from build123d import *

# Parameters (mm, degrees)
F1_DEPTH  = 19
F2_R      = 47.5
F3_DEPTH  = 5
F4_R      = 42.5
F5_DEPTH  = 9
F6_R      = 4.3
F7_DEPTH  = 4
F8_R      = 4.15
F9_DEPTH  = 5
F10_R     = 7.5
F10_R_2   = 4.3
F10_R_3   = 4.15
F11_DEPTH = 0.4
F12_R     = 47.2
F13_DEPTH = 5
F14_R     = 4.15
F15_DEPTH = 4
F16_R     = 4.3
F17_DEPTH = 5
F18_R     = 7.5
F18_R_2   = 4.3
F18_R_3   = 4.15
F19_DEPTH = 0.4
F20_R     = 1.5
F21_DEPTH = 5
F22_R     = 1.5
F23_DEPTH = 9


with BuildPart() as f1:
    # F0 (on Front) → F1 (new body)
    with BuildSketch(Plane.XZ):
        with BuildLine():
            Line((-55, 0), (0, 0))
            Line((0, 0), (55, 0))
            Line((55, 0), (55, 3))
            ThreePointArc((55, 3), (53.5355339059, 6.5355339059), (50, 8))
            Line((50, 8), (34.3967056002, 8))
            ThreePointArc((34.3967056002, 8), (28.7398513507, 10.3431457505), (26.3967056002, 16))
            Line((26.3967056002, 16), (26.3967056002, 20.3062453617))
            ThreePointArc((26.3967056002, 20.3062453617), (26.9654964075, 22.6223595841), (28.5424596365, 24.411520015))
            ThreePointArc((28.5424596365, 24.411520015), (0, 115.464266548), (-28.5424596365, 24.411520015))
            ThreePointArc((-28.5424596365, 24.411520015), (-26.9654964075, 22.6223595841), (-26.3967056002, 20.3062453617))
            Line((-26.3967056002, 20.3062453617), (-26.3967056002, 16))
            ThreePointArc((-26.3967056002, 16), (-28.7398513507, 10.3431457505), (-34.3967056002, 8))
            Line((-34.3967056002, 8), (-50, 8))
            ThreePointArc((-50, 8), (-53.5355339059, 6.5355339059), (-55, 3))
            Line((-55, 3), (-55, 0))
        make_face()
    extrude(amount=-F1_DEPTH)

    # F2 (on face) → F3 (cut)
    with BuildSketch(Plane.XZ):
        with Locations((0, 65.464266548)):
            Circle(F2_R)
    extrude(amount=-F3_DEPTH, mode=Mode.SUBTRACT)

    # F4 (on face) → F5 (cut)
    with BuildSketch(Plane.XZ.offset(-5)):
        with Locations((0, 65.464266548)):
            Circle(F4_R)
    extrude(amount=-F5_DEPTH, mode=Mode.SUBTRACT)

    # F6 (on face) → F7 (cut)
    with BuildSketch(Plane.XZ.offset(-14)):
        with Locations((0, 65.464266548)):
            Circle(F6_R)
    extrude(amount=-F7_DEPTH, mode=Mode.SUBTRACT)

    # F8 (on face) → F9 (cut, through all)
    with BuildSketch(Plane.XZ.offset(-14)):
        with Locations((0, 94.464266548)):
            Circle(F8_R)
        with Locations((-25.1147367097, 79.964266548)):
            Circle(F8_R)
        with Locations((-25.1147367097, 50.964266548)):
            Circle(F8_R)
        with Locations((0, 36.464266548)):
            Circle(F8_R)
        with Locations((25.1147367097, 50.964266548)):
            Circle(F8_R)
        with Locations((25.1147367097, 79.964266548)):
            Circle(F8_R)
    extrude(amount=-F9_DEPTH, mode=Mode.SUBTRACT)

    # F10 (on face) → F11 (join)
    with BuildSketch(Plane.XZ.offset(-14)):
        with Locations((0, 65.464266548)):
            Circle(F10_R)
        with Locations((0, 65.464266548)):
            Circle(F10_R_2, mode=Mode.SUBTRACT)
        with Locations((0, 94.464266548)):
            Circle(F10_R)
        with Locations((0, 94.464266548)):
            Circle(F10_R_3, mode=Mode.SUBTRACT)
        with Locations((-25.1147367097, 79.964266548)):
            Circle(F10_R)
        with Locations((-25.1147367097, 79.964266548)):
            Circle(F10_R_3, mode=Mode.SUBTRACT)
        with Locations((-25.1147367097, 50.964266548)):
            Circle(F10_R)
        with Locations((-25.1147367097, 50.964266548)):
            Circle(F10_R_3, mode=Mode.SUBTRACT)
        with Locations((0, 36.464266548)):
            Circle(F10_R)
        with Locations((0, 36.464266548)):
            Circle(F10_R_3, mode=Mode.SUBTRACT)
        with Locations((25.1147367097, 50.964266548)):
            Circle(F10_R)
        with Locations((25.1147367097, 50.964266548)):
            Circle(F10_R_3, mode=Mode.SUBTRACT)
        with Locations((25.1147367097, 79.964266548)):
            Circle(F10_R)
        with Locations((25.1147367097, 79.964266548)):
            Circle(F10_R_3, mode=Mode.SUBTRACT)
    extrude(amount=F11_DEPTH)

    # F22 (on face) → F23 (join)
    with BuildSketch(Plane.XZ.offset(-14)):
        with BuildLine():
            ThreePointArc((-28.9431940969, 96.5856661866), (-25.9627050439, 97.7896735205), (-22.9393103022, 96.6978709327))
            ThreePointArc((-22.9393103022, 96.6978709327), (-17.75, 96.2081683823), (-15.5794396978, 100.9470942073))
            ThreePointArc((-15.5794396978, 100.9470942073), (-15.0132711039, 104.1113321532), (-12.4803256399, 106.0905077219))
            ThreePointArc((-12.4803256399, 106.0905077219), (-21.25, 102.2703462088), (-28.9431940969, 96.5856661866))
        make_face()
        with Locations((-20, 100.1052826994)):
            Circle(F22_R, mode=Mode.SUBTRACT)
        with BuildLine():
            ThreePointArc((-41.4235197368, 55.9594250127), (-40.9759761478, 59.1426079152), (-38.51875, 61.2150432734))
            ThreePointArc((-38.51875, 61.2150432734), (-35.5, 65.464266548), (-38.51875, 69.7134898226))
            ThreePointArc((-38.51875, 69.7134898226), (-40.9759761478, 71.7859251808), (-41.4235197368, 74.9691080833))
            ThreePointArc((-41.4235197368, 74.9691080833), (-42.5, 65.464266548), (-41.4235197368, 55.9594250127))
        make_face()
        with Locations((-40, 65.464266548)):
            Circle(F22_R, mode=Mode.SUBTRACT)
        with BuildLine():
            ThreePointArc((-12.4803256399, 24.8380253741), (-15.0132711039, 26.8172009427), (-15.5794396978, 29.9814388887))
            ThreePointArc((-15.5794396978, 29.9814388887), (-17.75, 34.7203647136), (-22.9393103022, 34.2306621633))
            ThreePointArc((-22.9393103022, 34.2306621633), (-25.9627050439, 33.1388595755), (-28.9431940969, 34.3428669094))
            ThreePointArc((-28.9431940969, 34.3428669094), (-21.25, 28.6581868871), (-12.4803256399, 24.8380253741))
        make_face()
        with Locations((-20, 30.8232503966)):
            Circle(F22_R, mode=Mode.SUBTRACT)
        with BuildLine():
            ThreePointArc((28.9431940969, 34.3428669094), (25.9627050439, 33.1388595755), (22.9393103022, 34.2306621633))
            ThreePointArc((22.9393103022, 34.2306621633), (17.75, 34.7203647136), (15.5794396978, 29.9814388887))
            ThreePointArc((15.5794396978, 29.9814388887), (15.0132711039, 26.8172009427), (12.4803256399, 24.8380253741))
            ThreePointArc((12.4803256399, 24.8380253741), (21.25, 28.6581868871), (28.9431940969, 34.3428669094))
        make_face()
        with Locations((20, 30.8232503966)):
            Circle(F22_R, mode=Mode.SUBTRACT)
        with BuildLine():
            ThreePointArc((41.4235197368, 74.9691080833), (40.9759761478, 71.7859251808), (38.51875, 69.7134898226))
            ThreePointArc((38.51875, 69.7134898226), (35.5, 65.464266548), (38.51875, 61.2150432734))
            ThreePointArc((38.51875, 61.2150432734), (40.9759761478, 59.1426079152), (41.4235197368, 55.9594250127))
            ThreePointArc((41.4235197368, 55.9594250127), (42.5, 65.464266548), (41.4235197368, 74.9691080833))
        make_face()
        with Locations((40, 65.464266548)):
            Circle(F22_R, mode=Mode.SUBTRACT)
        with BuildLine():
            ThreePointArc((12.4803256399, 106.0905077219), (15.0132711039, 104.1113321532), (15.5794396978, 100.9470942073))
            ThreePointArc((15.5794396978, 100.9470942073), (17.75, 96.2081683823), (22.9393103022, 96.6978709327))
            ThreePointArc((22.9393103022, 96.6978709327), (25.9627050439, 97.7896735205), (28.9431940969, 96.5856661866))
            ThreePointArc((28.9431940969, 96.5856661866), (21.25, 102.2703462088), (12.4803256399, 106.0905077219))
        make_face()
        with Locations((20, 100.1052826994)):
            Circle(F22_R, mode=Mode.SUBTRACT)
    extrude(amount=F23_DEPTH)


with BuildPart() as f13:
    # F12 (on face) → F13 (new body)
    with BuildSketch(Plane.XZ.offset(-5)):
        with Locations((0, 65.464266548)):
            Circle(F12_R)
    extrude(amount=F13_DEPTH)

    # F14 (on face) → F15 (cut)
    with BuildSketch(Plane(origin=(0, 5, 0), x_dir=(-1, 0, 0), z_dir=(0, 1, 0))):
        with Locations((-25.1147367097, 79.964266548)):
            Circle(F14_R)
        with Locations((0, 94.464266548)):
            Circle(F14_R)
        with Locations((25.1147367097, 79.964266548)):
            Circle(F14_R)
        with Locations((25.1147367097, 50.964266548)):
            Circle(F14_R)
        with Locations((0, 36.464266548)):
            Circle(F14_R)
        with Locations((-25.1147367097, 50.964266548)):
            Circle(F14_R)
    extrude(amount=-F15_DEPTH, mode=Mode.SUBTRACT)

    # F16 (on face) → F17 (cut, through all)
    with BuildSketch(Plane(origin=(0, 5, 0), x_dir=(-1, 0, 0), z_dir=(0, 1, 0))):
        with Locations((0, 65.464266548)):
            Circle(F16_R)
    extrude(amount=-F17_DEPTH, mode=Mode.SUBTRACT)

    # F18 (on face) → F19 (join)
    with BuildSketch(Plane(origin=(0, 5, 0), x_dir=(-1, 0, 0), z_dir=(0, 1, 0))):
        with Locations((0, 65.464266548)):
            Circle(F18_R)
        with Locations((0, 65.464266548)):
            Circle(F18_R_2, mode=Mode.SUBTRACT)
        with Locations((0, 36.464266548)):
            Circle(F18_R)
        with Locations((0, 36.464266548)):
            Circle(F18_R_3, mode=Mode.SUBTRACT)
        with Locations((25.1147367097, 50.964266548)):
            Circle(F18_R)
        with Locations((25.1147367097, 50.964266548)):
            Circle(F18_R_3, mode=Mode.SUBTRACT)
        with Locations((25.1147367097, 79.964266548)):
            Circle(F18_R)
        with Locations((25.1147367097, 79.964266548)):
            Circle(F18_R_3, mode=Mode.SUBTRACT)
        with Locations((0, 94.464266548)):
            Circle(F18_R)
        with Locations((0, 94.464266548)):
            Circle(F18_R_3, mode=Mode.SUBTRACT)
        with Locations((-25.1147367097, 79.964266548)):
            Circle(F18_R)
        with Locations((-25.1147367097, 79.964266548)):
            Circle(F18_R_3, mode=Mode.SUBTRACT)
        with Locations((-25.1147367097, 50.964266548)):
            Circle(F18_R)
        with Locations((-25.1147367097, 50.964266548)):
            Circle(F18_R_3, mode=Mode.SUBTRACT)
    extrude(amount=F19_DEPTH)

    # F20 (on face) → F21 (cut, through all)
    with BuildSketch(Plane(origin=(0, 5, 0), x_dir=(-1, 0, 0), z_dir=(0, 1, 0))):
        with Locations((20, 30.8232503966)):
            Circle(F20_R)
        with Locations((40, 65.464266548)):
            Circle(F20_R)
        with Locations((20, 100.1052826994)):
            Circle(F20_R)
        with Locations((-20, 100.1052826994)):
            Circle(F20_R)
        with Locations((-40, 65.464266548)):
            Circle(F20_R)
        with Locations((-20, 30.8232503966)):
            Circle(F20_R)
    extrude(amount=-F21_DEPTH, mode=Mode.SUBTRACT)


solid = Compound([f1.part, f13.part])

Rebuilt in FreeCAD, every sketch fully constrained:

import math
import FreeCAD as App
import Part
import Sketcher

V = App.Vector
Q = App.Units.Quantity

doc = App.newDocument("Part")
body = doc.addObject("PartDesign::Body", "Body")

sketch1 = body.newObject("Sketcher::SketchObject", "Sketch")
sketch1.AttachmentSupport = (doc.getObject("XZ_Plane"), [""])
sketch1.MapMode = "FlatFace"
sketch1.addGeometry([
    Part.LineSegment(V(-55, 0, 0), V(55, 0, 0)),
    Part.LineSegment(V(55, 0, 0), V(55, 3, 0)),
    Part.ArcOfCircle(Part.Circle(V(50, 3, 0), V(0, 0, 1), 5), math.radians(0), math.radians(90)),
    Part.LineSegment(V(50, 8, 0), V(34.396706, 8, 0)),
    Part.ArcOfCircle(Part.Circle(V(34.396706, 16, 0), V(0, 0, 1), 8), math.radians(180), math.radians(270)),
    Part.LineSegment(V(26.396706, 16, 0), V(26.396706, 20.306245, 0)),
    Part.ArcOfCircle(Part.Circle(V(31.396706, 20.306245, 0), V(0, 0, 1), 5), math.radians(124.809464), math.radians(180)),
    Part.ArcOfCircle(Part.Circle(V(0, 65.464267, 0), V(0, 0, 1), 50), math.radians(-55.190536), math.radians(235.190536)),
    Part.ArcOfCircle(Part.Circle(V(-31.396706, 20.306245, 0), V(0, 0, 1), 5), math.radians(0), math.radians(55.190536)),
    Part.LineSegment(V(-26.396706, 20.306245, 0), V(-26.396706, 16, 0)),
    Part.ArcOfCircle(Part.Circle(V(-34.396706, 16, 0), V(0, 0, 1), 8), math.radians(-90), math.radians(0)),
    Part.LineSegment(V(-34.396706, 8, 0), V(-50, 8, 0)),
    Part.ArcOfCircle(Part.Circle(V(-50, 3, 0), V(0, 0, 1), 5), math.radians(90), math.radians(180)),
    Part.LineSegment(V(-55, 3, 0), V(-55, 0, 0)),
], False)
sketch1.addConstraint([
    Sketcher.Constraint("Coincident", 0, 2, 1, 1),
    Sketcher.Constraint("Tangent", 1, 2, 2, 1),
    Sketcher.Constraint("Tangent", 2, 2, 3, 1),
    Sketcher.Constraint("Tangent", 3, 2, 4, 2),
    Sketcher.Constraint("Tangent", 4, 1, 5, 1),
    Sketcher.Constraint("Tangent", 5, 2, 6, 2),
    Sketcher.Constraint("Tangent", 6, 1, 7, 1),
    Sketcher.Constraint("Tangent", 7, 2, 8, 2),
    Sketcher.Constraint("Tangent", 8, 1, 9, 1),
    Sketcher.Constraint("Tangent", 9, 2, 10, 2),
    Sketcher.Constraint("Tangent", 10, 1, 11, 1),
    Sketcher.Constraint("Tangent", 11, 2, 12, 1),
    Sketcher.Constraint("Tangent", 12, 2, 13, 1),
    Sketcher.Constraint("Coincident", 13, 2, 0, 1),
    Sketcher.Constraint("Horizontal", 0),
    Sketcher.Constraint("Vertical", 1),
    Sketcher.Constraint("Horizontal", 3),
    Sketcher.Constraint("Vertical", 5),
    Sketcher.Constraint("Vertical", 9),
    Sketcher.Constraint("Horizontal", 11),
    Sketcher.Constraint("Vertical", 13),
    Sketcher.Constraint("Equal", 2, 6),
    Sketcher.Constraint("Equal", 6, 8),
    Sketcher.Constraint("Equal", 4, 10),
    Sketcher.Constraint("Equal", 8, 12),
    Sketcher.Constraint("Symmetric", 0, 2, 13, 2, -1, 1),
    Sketcher.Constraint("Symmetric", 6, 3, 8, 3, -2),
    Sketcher.Constraint("Horizontal", 4, 3, 10, 3),
    Sketcher.Constraint("Radius", 2, Q("5 mm")),
    Sketcher.Constraint("Radius", 4, Q("8 mm")),
    Sketcher.Constraint("Radius", 7, Q("50 mm")),
    Sketcher.Constraint("DistanceX", 0, 1, 0, 2, Q("110 mm")),
    Sketcher.Constraint("DistanceY", 1, 1, 1, 2, Q("3 mm")),
    Sketcher.Constraint("DistanceX", 3, 2, 3, 1, Q("15.603294 mm")),
    Sketcher.Constraint("DistanceY", 5, 1, 5, 2, Q("4.306245 mm")),
])
pad1 = body.newObject("PartDesign::Pad", "Pad")
pad1.Profile = sketch1
pad1.Length = 19
pad1.Reversed = True

sketch2 = body.newObject("Sketcher::SketchObject", "Sketch001")
sketch2.AttachmentSupport = (doc.getObject("XZ_Plane"), [""])
sketch2.MapMode = "FlatFace"
sketch2.addGeometry(Part.Circle(V(0, 65.464267, 0), V(0, 0, 1), 47.5), False)
sketch2.addConstraint([
    Sketcher.Constraint("PointOnObject", 0, 3, -2),
    Sketcher.Constraint("Diameter", 0, Q("95 mm")),
    Sketcher.Constraint("DistanceY", -1, 1, 0, 3, Q("65.464267 mm")),
])
pocket1 = body.newObject("PartDesign::Pocket", "Pocket")
pocket1.Profile = sketch2
pocket1.Length = 5

sketch3 = body.newObject("Sketcher::SketchObject", "Sketch002")
sketch3.AttachmentSupport = (doc.getObject("XZ_Plane"), [""])
sketch3.MapMode = "FlatFace"
sketch3.AttachmentOffset = App.Placement(V(0, 0, -5), App.Rotation())
sketch3.addGeometry(Part.Circle(V(0, 65.464267, 0), V(0, 0, 1), 42.5), False)
sketch3.addConstraint([
    Sketcher.Constraint("PointOnObject", 0, 3, -2),
    Sketcher.Constraint("Diameter", 0, Q("85 mm")),
    Sketcher.Constraint("DistanceY", -1, 1, 0, 3, Q("65.464267 mm")),
])
pocket2 = body.newObject("PartDesign::Pocket", "Pocket001")
pocket2.Profile = sketch3
pocket2.Length = 9

sketch4 = body.newObject("Sketcher::SketchObject", "Sketch003")
sketch4.AttachmentSupport = (doc.getObject("XZ_Plane"), [""])
sketch4.MapMode = "FlatFace"
sketch4.AttachmentOffset = App.Placement(V(0, 0, -14), App.Rotation())
sketch4.addGeometry(Part.Circle(V(0, 65.464267, 0), V(0, 0, 1), 4.3), False)
sketch4.addConstraint([
    Sketcher.Constraint("PointOnObject", 0, 3, -2),
    Sketcher.Constraint("Diameter", 0, Q("8.6 mm")),
    Sketcher.Constraint("DistanceY", -1, 1, 0, 3, Q("65.464267 mm")),
])
pocket3 = body.newObject("PartDesign::Pocket", "Pocket002")
pocket3.Profile = sketch4
pocket3.Length = 4

sketch5 = body.newObject("Sketcher::SketchObject", "Sketch004")
sketch5.AttachmentSupport = (doc.getObject("XZ_Plane"), [""])
sketch5.MapMode = "FlatFace"
sketch5.AttachmentOffset = App.Placement(V(0, 0, -14), App.Rotation())
sketch5.addGeometry([
    Part.Circle(V(0, 94.464267, 0), V(0, 0, 1), 4.15),
    Part.Circle(V(-25.114737, 79.964267, 0), V(0, 0, 1), 4.15),
    Part.Circle(V(-25.114737, 50.964267, 0), V(0, 0, 1), 4.15),
    Part.Circle(V(0, 36.464267, 0), V(0, 0, 1), 4.15),
    Part.Circle(V(25.114737, 50.964267, 0), V(0, 0, 1), 4.15),
    Part.Circle(V(25.114737, 79.964267, 0), V(0, 0, 1), 4.15),
], False)
sketch5.addConstraint([
    Sketcher.Constraint("Equal", 0, 1),
    Sketcher.Constraint("Equal", 1, 2),
    Sketcher.Constraint("Equal", 2, 3),
    Sketcher.Constraint("Equal", 3, 4),
    Sketcher.Constraint("Equal", 4, 5),
    Sketcher.Constraint("Symmetric", 2, 3, 4, 3, -2),
    Sketcher.Constraint("Symmetric", 1, 3, 5, 3, -2),
    Sketcher.Constraint("PointOnObject", 0, 3, -2),
    Sketcher.Constraint("PointOnObject", 3, 3, -2),
    Sketcher.Constraint("Vertical", 1, 3, 2, 3),
    Sketcher.Constraint("Diameter", 0, Q("8.3 mm")),
    Sketcher.Constraint("DistanceY", 2, 3, 1, 3, Q("29 mm")),
    Sketcher.Constraint("DistanceY", 3, 3, 0, 3, Q("58 mm")),
    Sketcher.Constraint("DistanceY", 1, 3, 0, 3, Q("14.5 mm")),
    Sketcher.Constraint("DistanceY", -1, 1, 0, 3, Q("94.464267 mm")),
    Sketcher.Constraint("DistanceX", 1, 3, -1, 1, Q("25.114737 mm")),
])
pocket4 = body.newObject("PartDesign::Pocket", "Pocket003")
pocket4.Profile = sketch5
pocket4.Type = "ThroughAll"

sketch6 = body.newObject("Sketcher::SketchObject", "Sketch005")
sketch6.AttachmentSupport = (doc.getObject("XZ_Plane"), [""])
sketch6.MapMode = "FlatFace"
sketch6.AttachmentOffset = App.Placement(V(0, 0, -14), App.Rotation())
sketch6.addGeometry([
    Part.Circle(V(0, 65.464267, 0), V(0, 0, 1), 7.5),
    Part.Circle(V(0, 65.464267, 0), V(0, 0, 1), 4.3),
    Part.Circle(V(0, 94.464267, 0), V(0, 0, 1), 7.5),
    Part.Circle(V(0, 94.464267, 0), V(0, 0, 1), 4.15),
    Part.Circle(V(-25.114737, 79.964267, 0), V(0, 0, 1), 7.5),
    Part.Circle(V(-25.114737, 79.964267, 0), V(0, 0, 1), 4.15),
    Part.Circle(V(-25.114737, 50.964267, 0), V(0, 0, 1), 7.5),
    Part.Circle(V(-25.114737, 50.964267, 0), V(0, 0, 1), 4.15),
    Part.Circle(V(0, 36.464267, 0), V(0, 0, 1), 7.5),
    Part.Circle(V(0, 36.464267, 0), V(0, 0, 1), 4.15),
    Part.Circle(V(25.114737, 50.964267, 0), V(0, 0, 1), 7.5),
    Part.Circle(V(25.114737, 50.964267, 0), V(0, 0, 1), 4.15),
    Part.Circle(V(25.114737, 79.964267, 0), V(0, 0, 1), 7.5),
    Part.Circle(V(25.114737, 79.964267, 0), V(0, 0, 1), 4.15),
], False)
sketch6.addConstraint([
    Sketcher.Constraint("Coincident", 1, 3, 0, 3),
    Sketcher.Constraint("Coincident", 3, 3, 2, 3),
    Sketcher.Constraint("Coincident", 5, 3, 4, 3),
    Sketcher.Constraint("Coincident", 7, 3, 6, 3),
    Sketcher.Constraint("Coincident", 9, 3, 8, 3),
    Sketcher.Constraint("Coincident", 11, 3, 10, 3),
    Sketcher.Constraint("Coincident", 13, 3, 12, 3),
    Sketcher.Constraint("Equal", 0, 2),
    Sketcher.Constraint("Equal", 2, 4),
    Sketcher.Constraint("Equal", 3, 5),
    Sketcher.Constraint("Equal", 4, 6),
    Sketcher.Constraint("Equal", 5, 7),
    Sketcher.Constraint("Equal", 6, 8),
    Sketcher.Constraint("Equal", 7, 9),
    Sketcher.Constraint("Equal", 8, 10),
    Sketcher.Constraint("Equal", 9, 11),
    Sketcher.Constraint("Equal", 10, 12),
    Sketcher.Constraint("Equal", 11, 13),
    Sketcher.Constraint("Symmetric", 6, 3, 10, 3, -2),
    Sketcher.Constraint("Symmetric", 4, 3, 12, 3, -2),
    Sketcher.Constraint("PointOnObject", 0, 3, -2),
    Sketcher.Constraint("PointOnObject", 2, 3, -2),
    Sketcher.Constraint("PointOnObject", 8, 3, -2),
    Sketcher.Constraint("Vertical", 5, 3, 6, 3),
    Sketcher.Constraint("Diameter", 0, Q("15 mm")),
    Sketcher.Constraint("Diameter", 1, Q("8.6 mm")),
    Sketcher.Constraint("Diameter", 3, Q("8.3 mm")),
    Sketcher.Constraint("DistanceY", 0, 3, 2, 3, Q("29 mm")),
    Sketcher.Constraint("DistanceY", 6, 3, 4, 3, Q("29 mm")),
    Sketcher.Constraint("DistanceY", 8, 3, 0, 3, Q("29 mm")),
    Sketcher.Constraint("DistanceY", 0, 3, 4, 3, Q("14.5 mm")),
    Sketcher.Constraint("DistanceY", -1, 1, 0, 3, Q("65.464267 mm")),
    Sketcher.Constraint("DistanceX", 4, 3, -1, 1, Q("25.114737 mm")),
])
pad2 = body.newObject("PartDesign::Pad", "Pad001")
pad2.Profile = sketch6
pad2.Length = 0.4

sketch7 = body.newObject("Sketcher::SketchObject", "Sketch006")
sketch7.AttachmentSupport = (doc.getObject("XZ_Plane"), [""])
sketch7.MapMode = "FlatFace"
sketch7.AttachmentOffset = App.Placement(V(0, 0, -14), App.Rotation())
sketch7.addGeometry([
    Part.ArcOfCircle(Part.Circle(V(-25.878621, 93.290459, 0), V(0, 0, 1), 4.5), math.radians(49.218203), math.radians(132.923114)),
    Part.ArcOfCircle(Part.Circle(V(-20, 100.105283, 0), V(0, 0, 1), 4.5), math.radians(-130.781797), math.radians(10.781797)),
    Part.ArcOfCircle(Part.Circle(V(-11.158879, 101.788906, 0), V(0, 0, 1), 4.5), math.radians(107.076886), math.radians(190.781797)),
    Part.ArcOfCircle(Part.Circle(V(0, 65.464267, 0), V(0, 0, 1), 42.5), math.radians(107.076886), math.radians(132.923114)),
    Part.Circle(V(-20, 100.105283, 0), V(0, 0, 1), 1.5),
    Part.ArcOfCircle(Part.Circle(V(-37.0375, 56.96582, 0), V(0, 0, 1), 4.5), math.radians(109.218203), math.radians(192.923114)),
    Part.ArcOfCircle(Part.Circle(V(-40, 65.464267, 0), V(0, 0, 1), 4.5), math.radians(-70.781797), math.radians(70.781797)),
    Part.ArcOfCircle(Part.Circle(V(-37.0375, 73.962713, 0), V(0, 0, 1), 4.5), math.radians(167.076886), math.radians(250.781797)),
    Part.ArcOfCircle(Part.Circle(V(0, 65.464267, 0), V(0, 0, 1), 42.5), math.radians(167.076886), math.radians(192.923114)),
    Part.Circle(V(-40, 65.464267, 0), V(0, 0, 1), 1.5),
    Part.ArcOfCircle(Part.Circle(V(-11.158879, 29.139627, 0), V(0, 0, 1), 4.5), math.radians(169.218203), math.radians(252.923114)),
    Part.ArcOfCircle(Part.Circle(V(-20, 30.82325, 0), V(0, 0, 1), 4.5), math.radians(-10.781797), math.radians(130.781797)),
    Part.ArcOfCircle(Part.Circle(V(-25.878621, 37.638074, 0), V(0, 0, 1), 4.5), math.radians(-132.923114), math.radians(-49.218203)),
    Part.ArcOfCircle(Part.Circle(V(0, 65.464267, 0), V(0, 0, 1), 42.5), math.radians(-132.923114), math.radians(-107.076886)),
    Part.Circle(V(-20, 30.82325, 0), V(0, 0, 1), 1.5),
    Part.ArcOfCircle(Part.Circle(V(25.878621, 37.638074, 0), V(0, 0, 1), 4.5), math.radians(-130.781797), math.radians(-47.076886)),
    Part.ArcOfCircle(Part.Circle(V(20, 30.82325, 0), V(0, 0, 1), 4.5), math.radians(49.218203), math.radians(190.781797)),
    Part.ArcOfCircle(Part.Circle(V(11.158879, 29.139627, 0), V(0, 0, 1), 4.5), math.radians(-72.923114), math.radians(10.781797)),
    Part.ArcOfCircle(Part.Circle(V(0, 65.464267, 0), V(0, 0, 1), 42.5), math.radians(-72.923114), math.radians(-47.076886)),
    Part.Circle(V(20, 30.82325, 0), V(0, 0, 1), 1.5),
    Part.ArcOfCircle(Part.Circle(V(37.0375, 73.962713, 0), V(0, 0, 1), 4.5), math.radians(-70.781797), math.radians(12.923114)),
    Part.ArcOfCircle(Part.Circle(V(40, 65.464267, 0), V(0, 0, 1), 4.5), math.radians(109.218203), math.radians(250.781797)),
    Part.ArcOfCircle(Part.Circle(V(37.0375, 56.96582, 0), V(0, 0, 1), 4.5), math.radians(-12.923114), math.radians(70.781797)),
    Part.ArcOfCircle(Part.Circle(V(0, 65.464267, 0), V(0, 0, 1), 42.5), math.radians(-12.923114), math.radians(12.923114)),
    Part.Circle(V(40, 65.464267, 0), V(0, 0, 1), 1.5),
    Part.ArcOfCircle(Part.Circle(V(11.158879, 101.788906, 0), V(0, 0, 1), 4.5), math.radians(-10.781797), math.radians(72.923114)),
    Part.ArcOfCircle(Part.Circle(V(20, 100.105283, 0), V(0, 0, 1), 4.5), math.radians(169.218203), math.radians(310.781797)),
    Part.ArcOfCircle(Part.Circle(V(25.878621, 93.290459, 0), V(0, 0, 1), 4.5), math.radians(47.076886), math.radians(130.781797)),
    Part.ArcOfCircle(Part.Circle(V(0, 65.464267, 0), V(0, 0, 1), 42.5), math.radians(47.076886), math.radians(72.923114)),
    Part.Circle(V(20, 100.105283, 0), V(0, 0, 1), 1.5),
], False)
sketch7.addConstraint([
    Sketcher.Constraint("Tangent", 0, 1, 1, 1),
    Sketcher.Constraint("Tangent", 1, 2, 2, 2),
    Sketcher.Constraint("Tangent", 2, 1, 3, 1),
    Sketcher.Constraint("Tangent", 3, 2, 0, 2),
    Sketcher.Constraint("Tangent", 5, 1, 6, 1),
    Sketcher.Constraint("Tangent", 6, 2, 7, 2),
    Sketcher.Constraint("Tangent", 7, 1, 8, 1),
    Sketcher.Constraint("Tangent", 8, 2, 5, 2),
    Sketcher.Constraint("Tangent", 10, 1, 11, 1),
    Sketcher.Constraint("Tangent", 11, 2, 12, 2),
    Sketcher.Constraint("Tangent", 12, 1, 13, 1),
    Sketcher.Constraint("Tangent", 13, 2, 10, 2),
    Sketcher.Constraint("Tangent", 15, 1, 16, 1),
    Sketcher.Constraint("Tangent", 16, 2, 17, 2),
    Sketcher.Constraint("Tangent", 17, 1, 18, 1),
    Sketcher.Constraint("Tangent", 18, 2, 15, 2),
    Sketcher.Constraint("Tangent", 20, 1, 21, 1),
    Sketcher.Constraint("Tangent", 21, 2, 22, 2),
    Sketcher.Constraint("Tangent", 22, 1, 23, 1),
    Sketcher.Constraint("Tangent", 23, 2, 20, 2),
    Sketcher.Constraint("Tangent", 25, 1, 26, 1),
    Sketcher.Constraint("Tangent", 26, 2, 27, 2),
    Sketcher.Constraint("Tangent", 27, 1, 28, 1),
    Sketcher.Constraint("Tangent", 28, 2, 25, 2),
    Sketcher.Constraint("Coincident", 4, 3, 1, 3),
    Sketcher.Constraint("Coincident", 8, 3, 3, 3),
    Sketcher.Constraint("Coincident", 9, 3, 6, 3),
    Sketcher.Constraint("Coincident", 13, 3, 3, 3),
    Sketcher.Constraint("Coincident", 14, 3, 11, 3),
    Sketcher.Constraint("Coincident", 18, 3, 3, 3),
    Sketcher.Constraint("Coincident", 19, 3, 16, 3),
    Sketcher.Constraint("Coincident", 23, 3, 3, 3),
    Sketcher.Constraint("Coincident", 24, 3, 21, 3),
    Sketcher.Constraint("Coincident", 28, 3, 3, 3),
    Sketcher.Constraint("Coincident", 29, 3, 26, 3),
    Sketcher.Constraint("Equal", 0, 1),
    Sketcher.Constraint("Equal", 1, 2),
    Sketcher.Constraint("Equal", 2, 5),
    Sketcher.Constraint("Equal", 5, 6),
    Sketcher.Constraint("Equal", 6, 7),
    Sketcher.Constraint("Equal", 3, 8),
    Sketcher.Constraint("Equal", 4, 9),
    Sketcher.Constraint("Equal", 7, 10),
    Sketcher.Constraint("Equal", 10, 11),
    Sketcher.Constraint("Equal", 11, 12),
    Sketcher.Constraint("Equal", 8, 13),
    Sketcher.Constraint("Equal", 9, 14),
    Sketcher.Constraint("Equal", 12, 15),
    Sketcher.Constraint("Equal", 15, 16),
    Sketcher.Constraint("Equal", 16, 17),
    Sketcher.Constraint("Equal", 13, 18),
    Sketcher.Constraint("Equal", 14, 19),
    Sketcher.Constraint("Equal", 17, 20),
    Sketcher.Constraint("Equal", 20, 21),
    Sketcher.Constraint("Equal", 21, 22),
    Sketcher.Constraint("Equal", 18, 23),
    Sketcher.Constraint("Equal", 19, 24),
    Sketcher.Constraint("Equal", 22, 25),
    Sketcher.Constraint("Equal", 25, 26),
    Sketcher.Constraint("Equal", 26, 27),
    Sketcher.Constraint("Equal", 23, 28),
    Sketcher.Constraint("Equal", 24, 29),
    Sketcher.Constraint("Symmetric", 12, 3, 15, 3, -2),
    Sketcher.Constraint("Symmetric", 6, 3, 21, 3, -2),
    Sketcher.Constraint("Symmetric", 1, 3, 26, 3, -2),
    Sketcher.Constraint("Horizontal", 3, 3, 6, 3),
    Sketcher.Constraint("Horizontal", 14, 3, 16, 3),
    Sketcher.Constraint("Vertical", 2, 3, 10, 3),
    Sketcher.Constraint("Vertical", 4, 3, 11, 3),
    Sketcher.Constraint("Diameter", 4, Q("3 mm")),
    Sketcher.Constraint("Radius", 0, Q("4.5 mm")),
    Sketcher.Constraint("Radius", 3, Q("42.5 mm")),
    Sketcher.Constraint("DistanceX", 1, 3, -1, 1, Q("20 mm")),
    Sketcher.Constraint("DistanceX", 6, 3, -1, 1, Q("40 mm")),
    Sketcher.Constraint("DistanceX", 10, 3, 15, 3, Q("37.0375 mm")),
    Sketcher.Constraint("DistanceY", -1, 1, 0, 3, Q("93.290459 mm")),
])
pad3 = body.newObject("PartDesign::Pad", "Pad002")
pad3.Profile = sketch7
pad3.Length = 9
body2 = doc.addObject("PartDesign::Body", "Body001")

sketch8 = body2.newObject("Sketcher::SketchObject", "Sketch007")
sketch8.AttachmentSupport = (doc.getObject("XZ_Plane001"), [""])
sketch8.MapMode = "FlatFace"
sketch8.AttachmentOffset = App.Placement(V(0, 0, -5), App.Rotation())
sketch8.addGeometry(Part.Circle(V(0, 65.464267, 0), V(0, 0, 1), 47.2), False)
sketch8.addConstraint([
    Sketcher.Constraint("PointOnObject", 0, 3, -2),
    Sketcher.Constraint("Diameter", 0, Q("94.4 mm")),
    Sketcher.Constraint("DistanceY", -1, 1, 0, 3, Q("65.464267 mm")),
])
pad4 = body2.newObject("PartDesign::Pad", "Pad003")
pad4.Profile = sketch8
pad4.Length = 5

sketch9 = body2.newObject("Sketcher::SketchObject", "Sketch008")
sketch9.AttachmentSupport = (doc.getObject("XZ_Plane001"), [""])
sketch9.MapMode = "FlatFace"
sketch9.AttachmentOffset = App.Placement(V(0, 0, -5), App.Rotation())
sketch9.addGeometry([
    Part.Circle(V(25.114737, 79.964267, 0), V(0, 0, 1), 4.15),
    Part.Circle(V(0, 94.464267, 0), V(0, 0, 1), 4.15),
    Part.Circle(V(-25.114737, 79.964267, 0), V(0, 0, 1), 4.15),
    Part.Circle(V(-25.114737, 50.964267, 0), V(0, 0, 1), 4.15),
    Part.Circle(V(0, 36.464267, 0), V(0, 0, 1), 4.15),
    Part.Circle(V(25.114737, 50.964267, 0), V(0, 0, 1), 4.15),
], False)
sketch9.addConstraint([
    Sketcher.Constraint("Equal", 0, 1),
    Sketcher.Constraint("Equal", 1, 2),
    Sketcher.Constraint("Equal", 2, 3),
    Sketcher.Constraint("Equal", 3, 4),
    Sketcher.Constraint("Equal", 4, 5),
    Sketcher.Constraint("Symmetric", 0, 3, 2, 3, -2),
    Sketcher.Constraint("Symmetric", 3, 3, 5, 3, -2),
    Sketcher.Constraint("PointOnObject", 1, 3, -2),
    Sketcher.Constraint("PointOnObject", 4, 3, -2),
    Sketcher.Constraint("Vertical", 2, 3, 3, 3),
    Sketcher.Constraint("Diameter", 0, Q("8.3 mm")),
    Sketcher.Constraint("DistanceY", 3, 3, 2, 3, Q("29 mm")),
    Sketcher.Constraint("DistanceY", 4, 3, 1, 3, Q("58 mm")),
    Sketcher.Constraint("DistanceY", 0, 3, 1, 3, Q("14.5 mm")),
    Sketcher.Constraint("DistanceX", -1, 1, 0, 3, Q("25.114737 mm")),
    Sketcher.Constraint("DistanceY", -1, 1, 0, 3, Q("79.964267 mm")),
])
pocket5 = body2.newObject("PartDesign::Pocket", "Pocket004")
pocket5.Profile = sketch9
pocket5.Length = 4
pocket5.Reversed = True

sketch10 = body2.newObject("Sketcher::SketchObject", "Sketch009")
sketch10.AttachmentSupport = (doc.getObject("XZ_Plane001"), [""])
sketch10.MapMode = "FlatFace"
sketch10.AttachmentOffset = App.Placement(V(0, 0, -5), App.Rotation())
sketch10.addGeometry(Part.Circle(V(0, 65.464267, 0), V(0, 0, 1), 4.3), False)
sketch10.addConstraint([
    Sketcher.Constraint("PointOnObject", 0, 3, -2),
    Sketcher.Constraint("Diameter", 0, Q("8.6 mm")),
    Sketcher.Constraint("DistanceY", -1, 1, 0, 3, Q("65.464267 mm")),
])
pocket6 = body2.newObject("PartDesign::Pocket", "Pocket005")
pocket6.Profile = sketch10
pocket6.Type = "ThroughAll"
pocket6.Reversed = True

sketch11 = body2.newObject("Sketcher::SketchObject", "Sketch010")
sketch11.AttachmentSupport = (doc.getObject("XZ_Plane001"), [""])
sketch11.MapMode = "FlatFace"
sketch11.AttachmentOffset = App.Placement(V(0, 0, -5), App.Rotation())
sketch11.addGeometry([
    Part.Circle(V(0, 65.464267, 0), V(0, 0, 1), 7.5),
    Part.Circle(V(0, 65.464267, 0), V(0, 0, 1), 4.3),
    Part.Circle(V(0, 36.464267, 0), V(0, 0, 1), 7.5),
    Part.Circle(V(0, 36.464267, 0), V(0, 0, 1), 4.15),
    Part.Circle(V(-25.114737, 50.964267, 0), V(0, 0, 1), 7.5),
    Part.Circle(V(-25.114737, 50.964267, 0), V(0, 0, 1), 4.15),
    Part.Circle(V(-25.114737, 79.964267, 0), V(0, 0, 1), 7.5),
    Part.Circle(V(-25.114737, 79.964267, 0), V(0, 0, 1), 4.15),
    Part.Circle(V(0, 94.464267, 0), V(0, 0, 1), 7.5),
    Part.Circle(V(0, 94.464267, 0), V(0, 0, 1), 4.15),
    Part.Circle(V(25.114737, 79.964267, 0), V(0, 0, 1), 7.5),
    Part.Circle(V(25.114737, 79.964267, 0), V(0, 0, 1), 4.15),
    Part.Circle(V(25.114737, 50.964267, 0), V(0, 0, 1), 7.5),
    Part.Circle(V(25.114737, 50.964267, 0), V(0, 0, 1), 4.15),
], False)
sketch11.addConstraint([
    Sketcher.Constraint("Coincident", 1, 3, 0, 3),
    Sketcher.Constraint("Coincident", 3, 3, 2, 3),
    Sketcher.Constraint("Coincident", 5, 3, 4, 3),
    Sketcher.Constraint("Coincident", 7, 3, 6, 3),
    Sketcher.Constraint("Coincident", 9, 3, 8, 3),
    Sketcher.Constraint("Coincident", 11, 3, 10, 3),
    Sketcher.Constraint("Coincident", 13, 3, 12, 3),
    Sketcher.Constraint("Equal", 0, 2),
    Sketcher.Constraint("Equal", 2, 4),
    Sketcher.Constraint("Equal", 3, 5),
    Sketcher.Constraint("Equal", 4, 6),
    Sketcher.Constraint("Equal", 5, 7),
    Sketcher.Constraint("Equal", 6, 8),
    Sketcher.Constraint("Equal", 7, 9),
    Sketcher.Constraint("Equal", 8, 10),
    Sketcher.Constraint("Equal", 9, 11),
    Sketcher.Constraint("Equal", 10, 12),
    Sketcher.Constraint("Equal", 11, 13),
    Sketcher.Constraint("Symmetric", 6, 3, 10, 3, -2),
    Sketcher.Constraint("Symmetric", 4, 3, 12, 3, -2),
    Sketcher.Constraint("PointOnObject", 0, 3, -2),
    Sketcher.Constraint("PointOnObject", 2, 3, -2),
    Sketcher.Constraint("PointOnObject", 8, 3, -2),
    Sketcher.Constraint("Vertical", 5, 3, 6, 3),
    Sketcher.Constraint("Diameter", 0, Q("15 mm")),
    Sketcher.Constraint("Diameter", 1, Q("8.6 mm")),
    Sketcher.Constraint("Diameter", 3, Q("8.3 mm")),
    Sketcher.Constraint("DistanceY", 2, 3, 0, 3, Q("29 mm")),
    Sketcher.Constraint("DistanceY", 4, 3, 6, 3, Q("29 mm")),
    Sketcher.Constraint("DistanceY", 0, 3, 8, 3, Q("29 mm")),
    Sketcher.Constraint("DistanceY", 4, 3, 0, 3, Q("14.5 mm")),
    Sketcher.Constraint("DistanceY", -1, 1, 0, 3, Q("65.464267 mm")),
    Sketcher.Constraint("DistanceX", 4, 3, -1, 1, Q("25.114737 mm")),
])
pad5 = body2.newObject("PartDesign::Pad", "Pad004")
pad5.Profile = sketch11
pad5.Length = 0.4
pad5.Reversed = True

sketch12 = body2.newObject("Sketcher::SketchObject", "Sketch011")
sketch12.AttachmentSupport = (doc.getObject("XZ_Plane001"), [""])
sketch12.MapMode = "FlatFace"
sketch12.AttachmentOffset = App.Placement(V(0, 0, -5), App.Rotation())
sketch12.addGeometry([
    Part.Circle(V(-20, 30.82325, 0), V(0, 0, 1), 1.5),
    Part.Circle(V(-40, 65.464267, 0), V(0, 0, 1), 1.5),
    Part.Circle(V(-20, 100.105283, 0), V(0, 0, 1), 1.5),
    Part.Circle(V(20, 100.105283, 0), V(0, 0, 1), 1.5),
    Part.Circle(V(40, 65.464267, 0), V(0, 0, 1), 1.5),
    Part.Circle(V(20, 30.82325, 0), V(0, 0, 1), 1.5),
], False)
sketch12.addConstraint([
    Sketcher.Constraint("Equal", 0, 1),
    Sketcher.Constraint("Equal", 1, 2),
    Sketcher.Constraint("Equal", 2, 3),
    Sketcher.Constraint("Equal", 3, 4),
    Sketcher.Constraint("Equal", 4, 5),
    Sketcher.Constraint("Symmetric", 2, 3, 3, 3, -2),
    Sketcher.Constraint("Symmetric", 1, 3, 4, 3, -2),
    Sketcher.Constraint("Symmetric", 0, 3, 5, 3, -2),
    Sketcher.Constraint("Vertical", 0, 3, 2, 3),
    Sketcher.Constraint("Diameter", 0, Q("3 mm")),
    Sketcher.Constraint("DistanceX", 0, 3, -1, 1, Q("20 mm")),
    Sketcher.Constraint("DistanceX", 1, 3, -1, 1, Q("40 mm")),
    Sketcher.Constraint("DistanceY", -1, 1, 0, 3, Q("30.82325 mm")),
    Sketcher.Constraint("DistanceY", -1, 1, 1, 3, Q("65.464267 mm")),
    Sketcher.Constraint("DistanceY", -1, 1, 2, 3, Q("100.105283 mm")),
])
pocket7 = body2.newObject("PartDesign::Pocket", "Pocket006")
pocket7.Profile = sketch12
pocket7.Type = "ThroughAll"
pocket7.Reversed = True

doc.recompute()
